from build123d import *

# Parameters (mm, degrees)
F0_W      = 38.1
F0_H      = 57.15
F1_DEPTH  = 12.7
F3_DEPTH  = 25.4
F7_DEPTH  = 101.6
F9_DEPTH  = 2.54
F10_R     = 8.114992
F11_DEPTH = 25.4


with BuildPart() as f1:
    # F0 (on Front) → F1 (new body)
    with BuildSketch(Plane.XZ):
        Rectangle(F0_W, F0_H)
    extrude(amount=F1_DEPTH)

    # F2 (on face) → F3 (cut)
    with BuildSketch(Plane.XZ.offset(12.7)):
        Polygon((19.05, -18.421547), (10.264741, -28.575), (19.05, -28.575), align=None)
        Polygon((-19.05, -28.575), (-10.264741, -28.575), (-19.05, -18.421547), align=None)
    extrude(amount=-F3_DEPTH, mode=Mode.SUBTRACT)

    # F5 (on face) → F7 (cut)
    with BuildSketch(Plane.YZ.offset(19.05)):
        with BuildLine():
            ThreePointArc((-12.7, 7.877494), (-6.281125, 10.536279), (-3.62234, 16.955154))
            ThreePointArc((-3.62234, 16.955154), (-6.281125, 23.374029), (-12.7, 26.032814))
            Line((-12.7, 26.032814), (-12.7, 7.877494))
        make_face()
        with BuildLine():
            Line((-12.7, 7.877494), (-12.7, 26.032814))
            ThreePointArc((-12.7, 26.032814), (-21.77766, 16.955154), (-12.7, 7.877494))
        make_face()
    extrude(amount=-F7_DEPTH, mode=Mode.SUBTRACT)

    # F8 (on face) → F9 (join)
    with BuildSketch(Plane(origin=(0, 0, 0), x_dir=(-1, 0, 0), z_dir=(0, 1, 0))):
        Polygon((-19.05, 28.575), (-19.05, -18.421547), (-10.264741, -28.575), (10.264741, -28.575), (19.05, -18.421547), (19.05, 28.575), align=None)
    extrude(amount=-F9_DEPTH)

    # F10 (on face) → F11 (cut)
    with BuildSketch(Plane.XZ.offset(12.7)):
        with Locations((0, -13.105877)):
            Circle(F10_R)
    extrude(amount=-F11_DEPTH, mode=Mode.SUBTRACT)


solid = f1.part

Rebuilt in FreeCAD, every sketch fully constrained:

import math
import FreeCAD as App
import Part
import Sketcher
from FreeCAD import Vector
Q = App.Units.Quantity


def add_polygon(sketch, points):
    """Adds a closed chain of lines whose ends are joined by coincident constraints."""
    first, n = sketch.GeometryCount, len(points)
    for a, b in zip(points, points[1:] + points[:1]):
        sketch.addGeometry(Part.LineSegment(App.Vector(*a, 0), App.Vector(*b, 0)), False)
    for i in range(n):
        sketch.addConstraint(Sketcher.Constraint("Coincident", first + i, 2, first + (i + 1) % n, 1))

doc = App.newDocument("Part")
body = doc.addObject("PartDesign::Body", "Body")

# Sketch on XZ plane
sketch1 = doc.addObject("Sketcher::SketchObject", "Sketch")
body.addObject(sketch1)
sketch1.AttachmentSupport = (doc.XZ_Plane, [""])
sketch1.MapMode = "FlatFace"
add_polygon(sketch1, [(-19, 29), (-19, -29), (19, -29), (19, 29)])  # lines 0-3
sketch1.addConstraint([
    Sketcher.Constraint("Vertical", 0),
    Sketcher.Constraint("Horizontal", 1),
    Sketcher.Constraint("Vertical", 2),
    Sketcher.Constraint("Horizontal", 3),
    Sketcher.Constraint("Symmetric", 0, 2, 2, 2, -1, 1),
    Sketcher.Constraint("DistanceX", 1, 1, 1, 2, Q("1.5 in")),
    Sketcher.Constraint("DistanceY", 0, 2, 0, 1, Q("2.25 in")),
])
pad1 = doc.addObject("PartDesign::Pad", "Pad")
body.addObject(pad1)
pad1.Profile = sketch1
pad1.Length = Q("0.5 in")

# Sketch on XZ plane
sketch2 = doc.addObject("Sketcher::SketchObject", "Sketch001")
body.addObject(sketch2)
sketch2.AttachmentSupport = (doc.XZ_Plane, [""])
sketch2.MapMode = "FlatFace"
sketch2.AttachmentOffset = App.Placement(Vector(0, 0, 0.5 * 25.4), App.Rotation())
add_polygon(sketch2, [(19, -18), (10, -29), (19, -29)])  # lines 0-2
add_polygon(sketch2, [(-19, -29), (-10, -29), (-19, -18)])  # lines 3-5
sketch2.addConstraint([
    Sketcher.Constraint("Horizontal", 1),
    Sketcher.Constraint("Vertical", 2),
    Sketcher.Constraint("Horizontal", 3),
    Sketcher.Constraint("Vertical", 5),
    Sketcher.Constraint("Symmetric", 0, 2, 3, 2, -2),
    Sketcher.Constraint("Symmetric", 2, 2, 4, 2, -2),
    Sketcher.Constraint("DistanceX", 4, 2, 2, 2, Q("1.5 in")),
    Sketcher.Constraint("DistanceY", 0, 2, -1, 1, Q("1.125 in")),
    Sketcher.Constraint("DistanceX", 1, 1, 1, 2, Q("8.785259 mm")),
    Sketcher.Constraint("DistanceY", 2, 1, 2, 2, Q("10.153453 mm")),
])
pocket1 = doc.addObject("PartDesign::Pocket", "Pocket")
body.addObject(pocket1)
pocket1.Profile = sketch2
pocket1.Length = Q("1 in")

# Sketch on YZ plane
sketch3 = doc.addObject("Sketcher::SketchObject", "Sketch002")
body.addObject(sketch3)
sketch3.AttachmentSupport = (doc.YZ_Plane, [""])
sketch3.MapMode = "FlatFace"
sketch3.AttachmentOffset = App.Placement(Vector(0, 0, 0.75 * 25.4), App.Rotation())
sketch3.addGeometry([
    Part.ArcOfCircle(Part.Circle(Vector(-13, 17, 0), Vector(0, 0, 1), 9), math.radians(-90), math.radians(0)),
    Part.ArcOfCircle(Part.Circle(Vector(-13, 17, 0), Vector(0, 0, 1), 9), math.radians(0), math.radians(90)),
    Part.ArcOfCircle(Part.Circle(Vector(-13, 17, 0), Vector(0, 0, 1), 9), math.radians(90), math.radians(270)),
], False)
sketch3.addConstraint([
    Sketcher.Constraint("Tangent", 0, 2, 1, 1),
    Sketcher.Constraint("Tangent", 1, 2, 2, 1),
    Sketcher.Constraint("Tangent", 2, 2, 0, 1),
    Sketcher.Constraint("Horizontal", 2, 3, 0, 2),
    Sketcher.Constraint("Vertical", 2, 3, 1, 2),
    Sketcher.Constraint("Vertical", 1, 2, 2, 2),
    Sketcher.Constraint("DistanceX", 0, 3, -1, 1, Q("0.5 in")),
    Sketcher.Constraint("Radius", 0, Q("9.07766 mm")),
    Sketcher.Constraint("DistanceY", -1, 1, 0, 3, Q("16.955154 mm")),
])
pocket2 = doc.addObject("PartDesign::Pocket", "Pocket001")
body.addObject(pocket2)
pocket2.Profile = sketch3
pocket2.Length = Q("4 in")

# Sketch on XZ plane
sketch4 = doc.addObject("Sketcher::SketchObject", "Sketch003")
body.addObject(sketch4)
sketch4.AttachmentSupport = (doc.XZ_Plane, [""])
sketch4.MapMode = "FlatFace"
add_polygon(sketch4, [(19, 29), (19, -18), (10, -29), (-10, -29), (-19, -18), (-19, 29)])  # lines 0-5
sketch4.addConstraint([
    Sketcher.Constraint("Vertical", 0),
    Sketcher.Constraint("Horizontal", 2),
    Sketcher.Constraint("Vertical", 4),
    Sketcher.Constraint("Horizontal", 5),
    Sketcher.Constraint("Symmetric", 0, 2, 3, 2, -2),
    Sketcher.Constraint("Equal", 1, 3),
    Sketcher.Constraint("DistanceX", 5, 1, 5, 2, Q("1.5 in")),
    Sketcher.Constraint("DistanceY", 2, 2, 4, 2, Q("2.25 in")),
    Sketcher.Constraint("DistanceY", 1, 2, -1, 1, Q("1.125 in")),
    Sketcher.Constraint("DistanceX", 2, 2, 2, 1, Q("20.529482 mm")),
    Sketcher.Constraint("DistanceY", 0, 2, 0, 1, Q("46.996547 mm")),
])
pad2 = doc.addObject("PartDesign::Pad", "Pad001")
body.addObject(pad2)
pad2.Profile = sketch4
pad2.Length = Q("0.1 in")

# Sketch on XZ plane
sketch5 = doc.addObject("Sketcher::SketchObject", "Sketch004")
body.addObject(sketch5)
sketch5.AttachmentSupport = (doc.XZ_Plane, [""])
sketch5.MapMode = "FlatFace"
sketch5.AttachmentOffset = App.Placement(Vector(0, 0, 0.5 * 25.4), App.Rotation())
sketch5.addGeometry(Part.Circle(Vector(0, -13, 0), Vector(0, 0, 1), 8), False)
sketch5.addConstraint([
    Sketcher.Constraint("PointOnObject", 0, 3, -2),
    Sketcher.Constraint("Diameter", 0, Q("16.229984 mm")),
    Sketcher.Constraint("DistanceY", 0, 3, -1, 1, Q("13.105877 mm")),
])
pocket3 = doc.addObject("PartDesign::Pocket", "Pocket002")
body.addObject(pocket3)
pocket3.Profile = sketch5
pocket3.Length = Q("1 in")

doc.recompute()
